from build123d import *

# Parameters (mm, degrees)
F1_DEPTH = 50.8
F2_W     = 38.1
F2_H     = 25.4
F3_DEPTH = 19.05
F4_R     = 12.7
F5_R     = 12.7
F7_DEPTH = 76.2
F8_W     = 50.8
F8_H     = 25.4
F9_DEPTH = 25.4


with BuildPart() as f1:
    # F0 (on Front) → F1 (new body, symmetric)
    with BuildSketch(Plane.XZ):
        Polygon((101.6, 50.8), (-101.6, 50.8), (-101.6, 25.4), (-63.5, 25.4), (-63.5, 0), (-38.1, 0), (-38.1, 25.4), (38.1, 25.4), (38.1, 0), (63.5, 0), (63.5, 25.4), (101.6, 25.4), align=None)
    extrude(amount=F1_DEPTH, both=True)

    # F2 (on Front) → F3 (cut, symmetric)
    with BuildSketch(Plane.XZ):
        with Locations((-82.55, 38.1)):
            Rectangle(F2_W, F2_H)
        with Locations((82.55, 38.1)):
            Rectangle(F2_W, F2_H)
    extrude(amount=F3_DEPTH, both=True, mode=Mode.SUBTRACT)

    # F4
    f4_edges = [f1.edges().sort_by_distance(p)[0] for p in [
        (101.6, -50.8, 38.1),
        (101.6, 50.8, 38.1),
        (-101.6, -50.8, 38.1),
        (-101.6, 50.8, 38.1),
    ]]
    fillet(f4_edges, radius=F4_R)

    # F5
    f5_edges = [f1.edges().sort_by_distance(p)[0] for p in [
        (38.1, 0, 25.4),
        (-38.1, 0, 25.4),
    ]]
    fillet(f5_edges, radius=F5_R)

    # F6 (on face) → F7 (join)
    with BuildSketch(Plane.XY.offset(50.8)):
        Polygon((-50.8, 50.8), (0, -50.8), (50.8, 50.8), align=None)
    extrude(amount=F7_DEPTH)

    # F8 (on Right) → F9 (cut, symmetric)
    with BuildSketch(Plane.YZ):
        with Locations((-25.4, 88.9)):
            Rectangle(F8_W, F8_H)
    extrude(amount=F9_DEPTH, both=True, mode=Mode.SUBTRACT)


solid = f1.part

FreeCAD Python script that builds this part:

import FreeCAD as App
import Part
import Sketcher
from FreeCAD import Vector
Q = App.Units.Quantity


def edges_at(feature, points):
    """Names of the edges that pass closest to the given points."""
    edges = feature.Shape.Edges
    near = lambda p: min(range(len(edges)), key=lambda i: edges[i].distToShape(Part.Vertex(*p))[0])
    return sorted({f"Edge{near(p) + 1}" for p in points})

doc = App.newDocument("Part")
body = doc.addObject("PartDesign::Body", "Body")

# Sketch on XZ plane
sketch1 = body.newObject("Sketcher::SketchObject", "Sketch")
sketch1.AttachmentSupport = (doc.getObject("XZ_Plane"), [""])
sketch1.MapMode = "FlatFace"
sketch1.addGeometry(Part.LineSegment(Vector(102, 51, 0), Vector(-102, 51, 0)), False)
sketch1.addGeometry(Part.LineSegment(Vector(-102, 51, 0), Vector(-102, 25, 0)), False)
sketch1.addGeometry(Part.LineSegment(Vector(-102, 25, 0), Vector(-64, 25, 0)), False)
sketch1.addGeometry(Part.LineSegment(Vector(-64, 25, 0), Vector(-64, 0, 0)), False)
sketch1.addGeometry(Part.LineSegment(Vector(-64, 0, 0), Vector(-38, 0, 0)), False)
sketch1.addGeometry(Part.LineSegment(Vector(-38, 0, 0), Vector(-38, 25, 0)), False)
sketch1.addGeometry(Part.LineSegment(Vector(-38, 25, 0), Vector(38, 25, 0)), False)
sketch1.addGeometry(Part.LineSegment(Vector(38, 25, 0), Vector(38, 0, 0)), False)
sketch1.addGeometry(Part.LineSegment(Vector(38, 0, 0), Vector(64, 0, 0)), False)
sketch1.addGeometry(Part.LineSegment(Vector(64, 0, 0), Vector(64, 25, 0)), False)
sketch1.addGeometry(Part.LineSegment(Vector(64, 25, 0), Vector(102, 25, 0)), False)
sketch1.addGeometry(Part.LineSegment(Vector(102, 25, 0), Vector(102, 51, 0)), False)
sketch1.addConstraint(Sketcher.Constraint("Coincident", 0, 2, 1, 1))
sketch1.addConstraint(Sketcher.Constraint("Coincident", 1, 2, 2, 1))
sketch1.addConstraint(Sketcher.Constraint("Coincident", 2, 2, 3, 1))
sketch1.addConstraint(Sketcher.Constraint("Coincident", 3, 2, 4, 1))
sketch1.addConstraint(Sketcher.Constraint("Coincident", 4, 2, 5, 1))
sketch1.addConstraint(Sketcher.Constraint("Coincident", 5, 2, 6, 1))
sketch1.addConstraint(Sketcher.Constraint("Coincident", 6, 2, 7, 1))
sketch1.addConstraint(Sketcher.Constraint("Coincident", 7, 2, 8, 1))
sketch1.addConstraint(Sketcher.Constraint("Coincident", 8, 2, 9, 1))
sketch1.addConstraint(Sketcher.Constraint("Coincident", 9, 2, 10, 1))
sketch1.addConstraint(Sketcher.Constraint("Coincident", 10, 2, 11, 1))
sketch1.addConstraint(Sketcher.Constraint("Coincident", 11, 2, 0, 1))
sketch1.addConstraint(Sketcher.Constraint("Horizontal", 0))
sketch1.addConstraint(Sketcher.Constraint("Vertical", 1))
sketch1.addConstraint(Sketcher.Constraint("Horizontal", 2))
sketch1.addConstraint(Sketcher.Constraint("Vertical", 3))
sketch1.addConstraint(Sketcher.Constraint("Horizontal", 4))
sketch1.addConstraint(Sketcher.Constraint("Vertical", 5))
sketch1.addConstraint(Sketcher.Constraint("Horizontal", 6))
sketch1.addConstraint(Sketcher.Constraint("Vertical", 7))
sketch1.addConstraint(Sketcher.Constraint("Horizontal", 8))
sketch1.addConstraint(Sketcher.Constraint("Vertical", 9))
sketch1.addConstraint(Sketcher.Constraint("Horizontal", 10))
sketch1.addConstraint(Sketcher.Constraint("Vertical", 11))
sketch1.addConstraint(Sketcher.Constraint("Symmetric", 4, 2, 7, 2, -1, 1))
sketch1.addConstraint(Sketcher.Constraint("Symmetric", 3, 2, 8, 2, -2))
sketch1.addConstraint(Sketcher.Constraint("Symmetric", 1, 2, 10, 2, -2))
sketch1.addConstraint(Sketcher.Constraint("Horizontal", 2, 2, 5, 2))
sketch1.addConstraint(Sketcher.Constraint("Equal", 8, 1))
sketch1.addConstraint(Sketcher.Constraint("Equal", 1, 3))
sketch1.addConstraint(Sketcher.Constraint("DistanceX", 0, 2, 0, 1, Q("8 in")))
sketch1.addConstraint(Sketcher.Constraint("DistanceX", 4, 1, 4, 2, Q("1 in")))
sketch1.addConstraint(Sketcher.Constraint("DistanceX", 6, 1, 6, 2, Q("3 in")))
pad1 = body.newObject("PartDesign::Pad", "Pad")
pad1.Profile = sketch1
pad1.Length = Q("4 in")
pad1.Midplane = True

# Sketch on XZ plane
sketch2 = body.newObject("Sketcher::SketchObject", "Sketch001")
sketch2.AttachmentSupport = (doc.getObject("XZ_Plane"), [""])
sketch2.MapMode = "FlatFace"
sketch2.addGeometry(Part.LineSegment(Vector(-102, 51, 0), Vector(-102, 25, 0)), False)
sketch2.addGeometry(Part.LineSegment(Vector(-102, 25, 0), Vector(-64, 25, 0)), False)
sketch2.addGeometry(Part.LineSegment(Vector(-64, 25, 0), Vector(-64, 51, 0)), False)
sketch2.addGeometry(Part.LineSegment(Vector(-64, 51, 0), Vector(-102, 51, 0)), False)
sketch2.addGeometry(Part.LineSegment(Vector(64, 51, 0), Vector(64, 25, 0)), False)
sketch2.addGeometry(Part.LineSegment(Vector(64, 25, 0), Vector(102, 25, 0)), False)
sketch2.addGeometry(Part.LineSegment(Vector(102, 25, 0), Vector(102, 51, 0)), False)
sketch2.addGeometry(Part.LineSegment(Vector(102, 51, 0), Vector(64, 51, 0)), False)
sketch2.addConstraint(Sketcher.Constraint("Coincident", 0, 2, 1, 1))
sketch2.addConstraint(Sketcher.Constraint("Coincident", 1, 2, 2, 1))
sketch2.addConstraint(Sketcher.Constraint("Coincident", 2, 2, 3, 1))
sketch2.addConstraint(Sketcher.Constraint("Coincident", 3, 2, 0, 1))
sketch2.addConstraint(Sketcher.Constraint("Coincident", 4, 2, 5, 1))
sketch2.addConstraint(Sketcher.Constraint("Coincident", 5, 2, 6, 1))
sketch2.addConstraint(Sketcher.Constraint("Coincident", 6, 2, 7, 1))
sketch2.addConstraint(Sketcher.Constraint("Coincident", 7, 2, 4, 1))
sketch2.addConstraint(Sketcher.Constraint("Vertical", 0))
sketch2.addConstraint(Sketcher.Constraint("Horizontal", 1))
sketch2.addConstraint(Sketcher.Constraint("Vertical", 2))
sketch2.addConstraint(Sketcher.Constraint("Horizontal", 3))
sketch2.addConstraint(Sketcher.Constraint("Vertical", 4))
sketch2.addConstraint(Sketcher.Constraint("Horizontal", 5))
sketch2.addConstraint(Sketcher.Constraint("Vertical", 6))
sketch2.addConstraint(Sketcher.Constraint("Horizontal", 7))
sketch2.addConstraint(Sketcher.Constraint("Symmetric", 1, 2, 4, 2, -2))
sketch2.addConstraint(Sketcher.Constraint("Symmetric", 3, 2, 6, 2, -2))
sketch2.addConstraint(Sketcher.Constraint("DistanceY", 0, 2, 0, 1, Q("1 in")))
sketch2.addConstraint(Sketcher.Constraint("DistanceX", 1, 1, 1, 2, Q("1.5 in")))
sketch2.addConstraint(Sketcher.Constraint("DistanceX", 0, 2, -1, 1, Q("4 in")))
sketch2.addConstraint(Sketcher.Constraint("DistanceY", -1, 1, 0, 2, Q("1 in")))
pocket1 = body.newObject("PartDesign::Pocket", "Pocket")
pocket1.Profile = sketch2
pocket1.Length = Q("1.5 in")
pocket1.Midplane = True
doc.recompute()

fillet = body.newObject("PartDesign::Fillet", "Fillet")
fillet.Base = (pocket1, edges_at(pocket1, [
    (101.6, -50.8, 38.1),
    (101.6, 50.8, 38.1),
    (-101.6, -50.8, 38.1),
    (-101.6, 50.8, 38.1),
]))
fillet.Radius = Q("0.5 in")
doc.recompute()

fillet2 = body.newObject("PartDesign::Fillet", "Fillet001")
fillet2.Base = (fillet, edges_at(fillet, [(38.1, 0, 25.4), (-38.1, 0, 25.4)]))
fillet2.Radius = Q("0.5 in")

# Sketch on XY plane
sketch3 = body.newObject("Sketcher::SketchObject", "Sketch002")
sketch3.AttachmentSupport = (doc.getObject("XY_Plane"), [""])
sketch3.MapMode = "FlatFace"
sketch3.AttachmentOffset = App.Placement(Vector(0, 0, 2 * 25.4), App.Rotation())
sketch3.addGeometry(Part.LineSegment(Vector(-51, 51, 0), Vector(0, -51, 0)), False)
sketch3.addGeometry(Part.LineSegment(Vector(0, -51, 0), Vector(51, 51, 0)), False)
sketch3.addGeometry(Part.LineSegment(Vector(51, 51, 0), Vector(-51, 51, 0)), False)
sketch3.addConstraint(Sketcher.Constraint("Coincident", 0, 2, 1, 1))
sketch3.addConstraint(Sketcher.Constraint("Coincident", 1, 2, 2, 1))
sketch3.addConstraint(Sketcher.Constraint("Coincident", 2, 2, 0, 1))
sketch3.addConstraint(Sketcher.Constraint("Horizontal", 2))
sketch3.addConstraint(Sketcher.Constraint("PointOnObject", 0, 2, -2))
sketch3.addConstraint(Sketcher.Constraint("Equal", 0, 1))
sketch3.addConstraint(Sketcher.Constraint("DistanceX", 2, 2, 2, 1, Q("4 in")))
sketch3.addConstraint(Sketcher.Constraint("DistanceY", 0, 2, -1, 1, Q("2 in")))
sketch3.addConstraint(Sketcher.Constraint("DistanceY", -1, 1, 1, 2, Q("2 in")))
pad2 = body.newObject("PartDesign::Pad", "Pad001")
pad2.Profile = sketch3
pad2.Length = Q("3 in")

# Sketch on YZ plane
sketch4 = body.newObject("Sketcher::SketchObject", "Sketch003")
sketch4.AttachmentSupport = (doc.getObject("YZ_Plane"), [""])
sketch4.MapMode = "FlatFace"
sketch4.addGeometry(Part.LineSegment(Vector(-51, 102, 0), Vector(-51, 76, 0)), False)
sketch4.addGeometry(Part.LineSegment(Vector(-51, 76, 0), Vector(0, 76, 0)), False)
sketch4.addGeometry(Part.LineSegment(Vector(0, 76, 0), Vector(0, 102, 0)), False)
sketch4.addGeometry(Part.LineSegment(Vector(0, 102, 0), Vector(-51, 102, 0)), False)
sketch4.addConstraint(Sketcher.Constraint("Coincident", 0, 2, 1, 1))
sketch4.addConstraint(Sketcher.Constraint("Coincident", 1, 2, 2, 1))
sketch4.addConstraint(Sketcher.Constraint("Coincident", 2, 2, 3, 1))
sketch4.addConstraint(Sketcher.Constraint("Coincident", 3, 2, 0, 1))
sketch4.addConstraint(Sketcher.Constraint("Vertical", 0))
sketch4.addConstraint(Sketcher.Constraint("Horizontal", 1))
sketch4.addConstraint(Sketcher.Constraint("Vertical", 2))
sketch4.addConstraint(Sketcher.Constraint("Horizontal", 3))
sketch4.addConstraint(Sketcher.Constraint("PointOnObject", 1, 2, -2))
sketch4.addConstraint(Sketcher.Constraint("DistanceX", 1, 1, 1, 2, Q("2 in")))
sketch4.addConstraint(Sketcher.Constraint("DistanceY", 0, 2, 0, 1, Q("1 in")))
sketch4.addConstraint(Sketcher.Constraint("DistanceY", -1, 1, 0, 2, Q("3 in")))
pocket2 = body.newObject("PartDesign::Pocket", "Pocket001")
pocket2.Profile = sketch4
pocket2.Length = Q("2 in")
pocket2.Midplane = True

doc.recompute()
